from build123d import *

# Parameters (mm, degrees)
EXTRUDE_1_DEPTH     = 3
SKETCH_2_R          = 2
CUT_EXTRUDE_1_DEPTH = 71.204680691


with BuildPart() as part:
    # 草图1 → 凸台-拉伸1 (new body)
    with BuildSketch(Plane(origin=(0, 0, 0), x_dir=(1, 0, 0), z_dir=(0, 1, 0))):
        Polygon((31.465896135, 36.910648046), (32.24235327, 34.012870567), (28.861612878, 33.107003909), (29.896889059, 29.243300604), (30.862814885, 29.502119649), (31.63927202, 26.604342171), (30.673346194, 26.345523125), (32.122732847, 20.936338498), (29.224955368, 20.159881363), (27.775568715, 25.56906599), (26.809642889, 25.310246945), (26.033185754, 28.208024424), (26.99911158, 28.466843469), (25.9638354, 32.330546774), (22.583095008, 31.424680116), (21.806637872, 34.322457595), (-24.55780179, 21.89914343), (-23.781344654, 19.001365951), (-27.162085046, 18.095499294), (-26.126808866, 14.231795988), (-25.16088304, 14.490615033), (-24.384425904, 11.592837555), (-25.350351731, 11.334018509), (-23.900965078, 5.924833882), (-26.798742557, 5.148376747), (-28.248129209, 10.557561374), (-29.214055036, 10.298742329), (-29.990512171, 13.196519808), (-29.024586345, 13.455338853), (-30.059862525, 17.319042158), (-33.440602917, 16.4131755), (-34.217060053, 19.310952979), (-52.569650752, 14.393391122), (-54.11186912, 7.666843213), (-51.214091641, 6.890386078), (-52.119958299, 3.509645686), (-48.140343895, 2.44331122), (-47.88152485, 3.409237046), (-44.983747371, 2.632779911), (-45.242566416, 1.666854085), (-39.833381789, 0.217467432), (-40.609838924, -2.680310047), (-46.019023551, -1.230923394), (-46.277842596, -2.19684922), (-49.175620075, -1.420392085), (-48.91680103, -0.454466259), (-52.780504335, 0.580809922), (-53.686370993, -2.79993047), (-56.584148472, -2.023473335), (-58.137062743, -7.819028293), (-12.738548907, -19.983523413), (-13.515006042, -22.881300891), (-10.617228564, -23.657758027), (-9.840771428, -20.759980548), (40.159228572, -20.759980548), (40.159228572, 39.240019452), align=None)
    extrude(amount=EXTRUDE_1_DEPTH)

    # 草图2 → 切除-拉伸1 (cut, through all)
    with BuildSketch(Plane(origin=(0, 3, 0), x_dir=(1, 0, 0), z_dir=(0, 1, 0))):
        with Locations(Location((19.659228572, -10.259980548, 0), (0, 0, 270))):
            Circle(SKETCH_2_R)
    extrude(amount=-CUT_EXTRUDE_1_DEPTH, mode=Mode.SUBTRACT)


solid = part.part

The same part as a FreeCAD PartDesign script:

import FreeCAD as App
import Part
import Sketcher
Q = App.Units.Quantity

doc = App.newDocument("Part")
body = doc.addObject("PartDesign::Body", "Body")

sketch1 = body.newObject("Sketcher::SketchObject", "Sketch")
sketch1.AttachmentSupport = (doc.getObject("XZ_Plane"), [""])
sketch1.MapMode = "FlatFace"
sketch1.addGeometry([
    Part.LineSegment(App.Vector(31.465896, -36.910648, 0), App.Vector(32.242353, -34.012871, 0)),
    Part.LineSegment(App.Vector(32.242353, -34.012871, 0), App.Vector(28.861613, -33.107004, 0)),
    Part.LineSegment(App.Vector(28.861613, -33.107004, 0), App.Vector(29.896889, -29.243301, 0)),
    Part.LineSegment(App.Vector(29.896889, -29.243301, 0), App.Vector(30.862815, -29.50212, 0)),
    Part.LineSegment(App.Vector(30.862815, -29.50212, 0), App.Vector(31.639272, -26.604342, 0)),
    Part.LineSegment(App.Vector(31.639272, -26.604342, 0), App.Vector(30.673346, -26.345523, 0)),
    Part.LineSegment(App.Vector(30.673346, -26.345523, 0), App.Vector(32.122733, -20.936338, 0)),
    Part.LineSegment(App.Vector(32.122733, -20.936338, 0), App.Vector(29.224955, -20.159881, 0)),
    Part.LineSegment(App.Vector(29.224955, -20.159881, 0), App.Vector(27.775569, -25.569066, 0)),
    Part.LineSegment(App.Vector(27.775569, -25.569066, 0), App.Vector(26.809643, -25.310247, 0)),
    Part.LineSegment(App.Vector(26.809643, -25.310247, 0), App.Vector(26.033186, -28.208024, 0)),
    Part.LineSegment(App.Vector(26.033186, -28.208024, 0), App.Vector(26.999112, -28.466843, 0)),
    Part.LineSegment(App.Vector(26.999112, -28.466843, 0), App.Vector(25.963835, -32.330547, 0)),
    Part.LineSegment(App.Vector(25.963835, -32.330547, 0), App.Vector(22.583095, -31.42468, 0)),
    Part.LineSegment(App.Vector(22.583095, -31.42468, 0), App.Vector(21.806638, -34.322458, 0)),
    Part.LineSegment(App.Vector(21.806638, -34.322458, 0), App.Vector(-24.557802, -21.899143, 0)),
    Part.LineSegment(App.Vector(-24.557802, -21.899143, 0), App.Vector(-23.781345, -19.001366, 0)),
    Part.LineSegment(App.Vector(-23.781345, -19.001366, 0), App.Vector(-27.162085, -18.095499, 0)),
    Part.LineSegment(App.Vector(-27.162085, -18.095499, 0), App.Vector(-26.126809, -14.231796, 0)),
    Part.LineSegment(App.Vector(-26.126809, -14.231796, 0), App.Vector(-25.160883, -14.490615, 0)),
    Part.LineSegment(App.Vector(-25.160883, -14.490615, 0), App.Vector(-24.384426, -11.592838, 0)),
    Part.LineSegment(App.Vector(-24.384426, -11.592838, 0), App.Vector(-25.350352, -11.334019, 0)),
    Part.LineSegment(App.Vector(-25.350352, -11.334019, 0), App.Vector(-23.900965, -5.924834, 0)),
    Part.LineSegment(App.Vector(-23.900965, -5.924834, 0), App.Vector(-26.798743, -5.148377, 0)),
    Part.LineSegment(App.Vector(-26.798743, -5.148377, 0), App.Vector(-28.248129, -10.557561, 0)),
    Part.LineSegment(App.Vector(-28.248129, -10.557561, 0), App.Vector(-29.214055, -10.298742, 0)),
    Part.LineSegment(App.Vector(-29.214055, -10.298742, 0), App.Vector(-29.990512, -13.19652, 0)),
    Part.LineSegment(App.Vector(-29.990512, -13.19652, 0), App.Vector(-29.024586, -13.455339, 0)),
    Part.LineSegment(App.Vector(-29.024586, -13.455339, 0), App.Vector(-30.059863, -17.319042, 0)),
    Part.LineSegment(App.Vector(-30.059863, -17.319042, 0), App.Vector(-33.440603, -16.413176, 0)),
    Part.LineSegment(App.Vector(-33.440603, -16.413176, 0), App.Vector(-34.21706, -19.310953, 0)),
    Part.LineSegment(App.Vector(-34.21706, -19.310953, 0), App.Vector(-52.569651, -14.393391, 0)),
    Part.LineSegment(App.Vector(-52.569651, -14.393391, 0), App.Vector(-54.111869, -7.666843, 0)),
    Part.LineSegment(App.Vector(-54.111869, -7.666843, 0), App.Vector(-51.214092, -6.890386, 0)),
    Part.LineSegment(App.Vector(-51.214092, -6.890386, 0), App.Vector(-52.119958, -3.509646, 0)),
    Part.LineSegment(App.Vector(-52.119958, -3.509646, 0), App.Vector(-48.140344, -2.443311, 0)),
    Part.LineSegment(App.Vector(-48.140344, -2.443311, 0), App.Vector(-47.881525, -3.409237, 0)),
    Part.LineSegment(App.Vector(-47.881525, -3.409237, 0), App.Vector(-44.983747, -2.63278, 0)),
    Part.LineSegment(App.Vector(-44.983747, -2.63278, 0), App.Vector(-45.242566, -1.666854, 0)),
    Part.LineSegment(App.Vector(-45.242566, -1.666854, 0), App.Vector(-39.833382, -0.217467, 0)),
    Part.LineSegment(App.Vector(-39.833382, -0.217467, 0), App.Vector(-40.609839, 2.68031, 0)),
    Part.LineSegment(App.Vector(-40.609839, 2.68031, 0), App.Vector(-46.019024, 1.230923, 0)),
    Part.LineSegment(App.Vector(-46.019024, 1.230923, 0), App.Vector(-46.277843, 2.196849, 0)),
    Part.LineSegment(App.Vector(-46.277843, 2.196849, 0), App.Vector(-49.17562, 1.420392, 0)),
    Part.LineSegment(App.Vector(-49.17562, 1.420392, 0), App.Vector(-48.916801, 0.454466, 0)),
    Part.LineSegment(App.Vector(-48.916801, 0.454466, 0), App.Vector(-52.780504, -0.58081, 0)),
    Part.LineSegment(App.Vector(-52.780504, -0.58081, 0), App.Vector(-53.686371, 2.79993, 0)),
    Part.LineSegment(App.Vector(-53.686371, 2.79993, 0), App.Vector(-56.584148, 2.023473, 0)),
    Part.LineSegment(App.Vector(-56.584148, 2.023473, 0), App.Vector(-58.137063, 7.819028, 0)),
    Part.LineSegment(App.Vector(-58.137063, 7.819028, 0), App.Vector(-12.738549, 19.983523, 0)),
    Part.LineSegment(App.Vector(-12.738549, 19.983523, 0), App.Vector(-13.515006, 22.881301, 0)),
    Part.LineSegment(App.Vector(-13.515006, 22.881301, 0), App.Vector(-10.617229, 23.657758, 0)),
    Part.LineSegment(App.Vector(-10.617229, 23.657758, 0), App.Vector(-9.840771, 20.759981, 0)),
    Part.LineSegment(App.Vector(-9.840771, 20.759981, 0), App.Vector(40.159229, 20.759981, 0)),
    Part.LineSegment(App.Vector(40.159229, 20.759981, 0), App.Vector(40.159229, -39.240019, 0)),
    Part.LineSegment(App.Vector(40.159229, -39.240019, 0), App.Vector(31.465896, -36.910648, 0)),
], False)
sketch1.addConstraint([
    Sketcher.Constraint("Coincident", 0, 2, 1, 1),
    Sketcher.Constraint("Coincident", 1, 2, 2, 1),
    Sketcher.Constraint("Coincident", 2, 2, 3, 1),
    Sketcher.Constraint("Coincident", 3, 2, 4, 1),
    Sketcher.Constraint("Coincident", 4, 2, 5, 1),
    Sketcher.Constraint("Coincident", 5, 2, 6, 1),
    Sketcher.Constraint("Coincident", 6, 2, 7, 1),
    Sketcher.Constraint("Coincident", 7, 2, 8, 1),
    Sketcher.Constraint("Coincident", 8, 2, 9, 1),
    Sketcher.Constraint("Coincident", 9, 2, 10, 1),
    Sketcher.Constraint("Coincident", 10, 2, 11, 1),
    Sketcher.Constraint("Coincident", 11, 2, 12, 1),
    Sketcher.Constraint("Coincident", 12, 2, 13, 1),
    Sketcher.Constraint("Coincident", 13, 2, 14, 1),
    Sketcher.Constraint("Coincident", 14, 2, 15, 1),
    Sketcher.Constraint("Coincident", 15, 2, 16, 1),
    Sketcher.Constraint("Coincident", 16, 2, 17, 1),
    Sketcher.Constraint("Coincident", 17, 2, 18, 1),
    Sketcher.Constraint("Coincident", 18, 2, 19, 1),
    Sketcher.Constraint("Coincident", 19, 2, 20, 1),
    Sketcher.Constraint("Coincident", 20, 2, 21, 1),
    Sketcher.Constraint("Coincident", 21, 2, 22, 1),
    Sketcher.Constraint("Coincident", 22, 2, 23, 1),
    Sketcher.Constraint("Coincident", 23, 2, 24, 1),
    Sketcher.Constraint("Coincident", 24, 2, 25, 1),
    Sketcher.Constraint("Coincident", 25, 2, 26, 1),
    Sketcher.Constraint("Coincident", 26, 2, 27, 1),
    Sketcher.Constraint("Coincident", 27, 2, 28, 1),
    Sketcher.Constraint("Coincident", 28, 2, 29, 1),
    Sketcher.Constraint("Coincident", 29, 2, 30, 1),
    Sketcher.Constraint("Coincident", 30, 2, 31, 1),
    Sketcher.Constraint("Coincident", 31, 2, 32, 1),
    Sketcher.Constraint("Coincident", 32, 2, 33, 1),
    Sketcher.Constraint("Coincident", 33, 2, 34, 1),
    Sketcher.Constraint("Coincident", 34, 2, 35, 1),
    Sketcher.Constraint("Coincident", 35, 2, 36, 1),
    Sketcher.Constraint("Coincident", 36, 2, 37, 1),
    Sketcher.Constraint("Coincident", 37, 2, 38, 1),
    Sketcher.Constraint("Coincident", 38, 2, 39, 1),
    Sketcher.Constraint("Coincident", 39, 2, 40, 1),
    Sketcher.Constraint("Coincident", 40, 2, 41, 1),
    Sketcher.Constraint("Coincident", 41, 2, 42, 1),
    Sketcher.Constraint("Coincident", 42, 2, 43, 1),
    Sketcher.Constraint("Coincident", 43, 2, 44, 1),
    Sketcher.Constraint("Coincident", 44, 2, 45, 1),
    Sketcher.Constraint("Coincident", 45, 2, 46, 1),
    Sketcher.Constraint("Coincident", 46, 2, 47, 1),
    Sketcher.Constraint("Coincident", 47, 2, 48, 1),
    Sketcher.Constraint("Coincident", 48, 2, 49, 1),
    Sketcher.Constraint("Coincident", 49, 2, 50, 1),
    Sketcher.Constraint("Coincident", 50, 2, 51, 1),
    Sketcher.Constraint("Coincident", 51, 2, 52, 1),
    Sketcher.Constraint("Coincident", 52, 2, 53, 1),
    Sketcher.Constraint("Coincident", 53, 2, 54, 1),
    Sketcher.Constraint("Coincident", 54, 2, 55, 1),
    Sketcher.Constraint("Coincident", 55, 2, 0, 1),
    Sketcher.Constraint("Horizontal", 53),
    Sketcher.Constraint("Vertical", 54),
    Sketcher.Constraint("Perpendicular", 0, 1),
    Sketcher.Constraint("Perpendicular", 1, 2),
    Sketcher.Constraint("Perpendicular", 2, 3),
    Sketcher.Constraint("Perpendicular", 3, 4),
    Sketcher.Constraint("Perpendicular", 4, 5),
    Sketcher.Constraint("Perpendicular", 5, 6),
    Sketcher.Constraint("Perpendicular", 6, 7),
    Sketcher.Constraint("Perpendicular", 7, 8),
    Sketcher.Constraint("Perpendicular", 8, 9),
    Sketcher.Constraint("Perpendicular", 9, 10),
    Sketcher.Constraint("Perpendicular", 10, 11),
    Sketcher.Constraint("Perpendicular", 11, 12),
    Sketcher.Constraint("Perpendicular", 12, 13),
    Sketcher.Constraint("Perpendicular", 13, 14),
    Sketcher.Constraint("Perpendicular", 14, 15),
    Sketcher.Constraint("Perpendicular", 15, 16),
    Sketcher.Constraint("Perpendicular", 16, 17),
    Sketcher.Constraint("Perpendicular", 17, 18),
    Sketcher.Constraint("Perpendicular", 18, 19),
    Sketcher.Constraint("Perpendicular", 19, 20),
    Sketcher.Constraint("Perpendicular", 20, 21),
    Sketcher.Constraint("Perpendicular", 21, 22),
    Sketcher.Constraint("Perpendicular", 22, 23),
    Sketcher.Constraint("Perpendicular", 23, 24),
    Sketcher.Constraint("Perpendicular", 24, 25),
    Sketcher.Constraint("Perpendicular", 25, 26),
    Sketcher.Constraint("Perpendicular", 26, 27),
    Sketcher.Constraint("Perpendicular", 27, 28),
    Sketcher.Constraint("Perpendicular", 28, 29),
    Sketcher.Constraint("Perpendicular", 29, 30),
    Sketcher.Constraint("Perpendicular", 30, 31),
    Sketcher.Constraint("Perpendicular", 33, 34),
    Sketcher.Constraint("Perpendicular", 34, 35),
    Sketcher.Constraint("Perpendicular", 35, 36),
    Sketcher.Constraint("Perpendicular", 36, 37),
    Sketcher.Constraint("Perpendicular", 37, 38),
    Sketcher.Constraint("Perpendicular", 38, 39),
    Sketcher.Constraint("Perpendicular", 39, 40),
    Sketcher.Constraint("Perpendicular", 40, 41),
    Sketcher.Constraint("Perpendicular", 41, 42),
    Sketcher.Constraint("Perpendicular", 42, 43),
    Sketcher.Constraint("Perpendicular", 43, 44),
    Sketcher.Constraint("Perpendicular", 44, 45),
    Sketcher.Constraint("Perpendicular", 45, 46),
    Sketcher.Constraint("Perpendicular", 46, 47),
    Sketcher.Constraint("Perpendicular", 47, 48),
    Sketcher.Constraint("Perpendicular", 48, 49),
    Sketcher.Constraint("Perpendicular", 49, 50),
    Sketcher.Constraint("Perpendicular", 50, 51),
    Sketcher.Constraint("Perpendicular", 51, 52),
    Sketcher.Constraint("Parallel", 31, 55),
    Sketcher.Constraint("Equal", 0, 4),
    Sketcher.Constraint("Equal", 3, 5),
    Sketcher.Constraint("Equal", 4, 7),
    Sketcher.Constraint("Equal", 6, 8),
    Sketcher.Constraint("Equal", 5, 9),
    Sketcher.Constraint("Equal", 7, 10),
    Sketcher.Constraint("Equal", 9, 11),
    Sketcher.Constraint("Equal", 2, 12),
    Sketcher.Constraint("Equal", 1, 13),
    Sketcher.Constraint("Equal", 10, 14),
    Sketcher.Constraint("Equal", 14, 16),
    Sketcher.Constraint("Equal", 13, 17),
    Sketcher.Constraint("Equal", 12, 18),
    Sketcher.Constraint("Equal", 11, 19),
    Sketcher.Constraint("Equal", 16, 20),
    Sketcher.Constraint("Equal", 19, 21),
    Sketcher.Constraint("Equal", 8, 22),
    Sketcher.Constraint("Equal", 20, 23),
    Sketcher.Constraint("Equal", 22, 24),
    Sketcher.Constraint("Equal", 21, 25),
    Sketcher.Constraint("Equal", 23, 26),
    Sketcher.Constraint("Equal", 25, 27),
    Sketcher.Constraint("Equal", 18, 28),
    Sketcher.Constraint("Equal", 17, 29),
    Sketcher.Constraint("Equal", 26, 30),
    Sketcher.Constraint("Equal", 30, 33),
    Sketcher.Constraint("Equal", 29, 34),
    Sketcher.Constraint("Equal", 27, 36),
    Sketcher.Constraint("Equal", 33, 37),
    Sketcher.Constraint("Equal", 36, 38),
    Sketcher.Constraint("Equal", 24, 39),
    Sketcher.Constraint("Equal", 37, 40),
    Sketcher.Constraint("Equal", 39, 41),
    Sketcher.Constraint("Equal", 38, 42),
    Sketcher.Constraint("Equal", 40, 43),
    Sketcher.Constraint("Equal", 42, 44),
    Sketcher.Constraint("Equal", 28, 45),
    Sketcher.Constraint("Equal", 34, 46),
    Sketcher.Constraint("Equal", 43, 47),
    Sketcher.Constraint("Equal", 47, 50),
    Sketcher.Constraint("Equal", 50, 51),
    Sketcher.Constraint("Equal", 51, 52),
    Sketcher.Constraint("DistanceX", 53, 1, 53, 2, 50.0),
    Sketcher.Constraint("DistanceY", 54, 2, 54, 1, 60.0),
    Sketcher.Constraint("Angle", 0, Q("75 deg")),
    Sketcher.Constraint("Angle", 33, Q("15 deg")),
    Sketcher.Constraint("Distance", 0, 3.0),
    Sketcher.Constraint("Distance", 2, 4.0),
    Sketcher.Constraint("Distance", 3, 1.0),
    Sketcher.Constraint("Distance", 15, 48.0),
    Sketcher.Constraint("Distance", 31, 19.0),
    Sketcher.Constraint("Distance", 48, 6.0),
    Sketcher.Constraint("Distance", 49, 47.0),
    Sketcher.Constraint("Distance", 55, 9.0),
    Sketcher.Constraint("Distance", 1, 3.5),
    Sketcher.Constraint("Distance", 6, 5.6),
    Sketcher.Constraint("Distance", 35, 4.12),
    Sketcher.Constraint("DistanceY", 2, 2, -1, 1, 29.243301),
    Sketcher.Constraint("DistanceX", 15, 2, -1, 1, 24.557802),
])
pad1 = body.newObject("PartDesign::Pad", "Pad")
pad1.Profile = sketch1
pad1.Length = 3
pad1.Reversed = True

sketch2 = body.newObject("Sketcher::SketchObject", "Sketch001")
sketch2.AttachmentSupport = (doc.getObject("XZ_Plane"), [""])
sketch2.MapMode = "FlatFace"
sketch2.AttachmentOffset = App.Placement(App.Vector(0, 0, -3), App.Rotation())
sketch2.addGeometry(Part.Circle(App.Vector(19.659229, 10.259981, 0), App.Vector(0, 0, 1), 2), False)
sketch2.addConstraint([
    Sketcher.Constraint("Diameter", 0, 4.0),
    Sketcher.Constraint("DistanceX", -1, 1, 0, 3, 19.659229),
    Sketcher.Constraint("DistanceY", -1, 1, 0, 3, 10.259981),
])
pocket1 = body.newObject("PartDesign::Pocket", "Pocket")
pocket1.Profile = sketch2
pocket1.Type = "ThroughAll"
pocket1.Reversed = True

doc.recompute()
